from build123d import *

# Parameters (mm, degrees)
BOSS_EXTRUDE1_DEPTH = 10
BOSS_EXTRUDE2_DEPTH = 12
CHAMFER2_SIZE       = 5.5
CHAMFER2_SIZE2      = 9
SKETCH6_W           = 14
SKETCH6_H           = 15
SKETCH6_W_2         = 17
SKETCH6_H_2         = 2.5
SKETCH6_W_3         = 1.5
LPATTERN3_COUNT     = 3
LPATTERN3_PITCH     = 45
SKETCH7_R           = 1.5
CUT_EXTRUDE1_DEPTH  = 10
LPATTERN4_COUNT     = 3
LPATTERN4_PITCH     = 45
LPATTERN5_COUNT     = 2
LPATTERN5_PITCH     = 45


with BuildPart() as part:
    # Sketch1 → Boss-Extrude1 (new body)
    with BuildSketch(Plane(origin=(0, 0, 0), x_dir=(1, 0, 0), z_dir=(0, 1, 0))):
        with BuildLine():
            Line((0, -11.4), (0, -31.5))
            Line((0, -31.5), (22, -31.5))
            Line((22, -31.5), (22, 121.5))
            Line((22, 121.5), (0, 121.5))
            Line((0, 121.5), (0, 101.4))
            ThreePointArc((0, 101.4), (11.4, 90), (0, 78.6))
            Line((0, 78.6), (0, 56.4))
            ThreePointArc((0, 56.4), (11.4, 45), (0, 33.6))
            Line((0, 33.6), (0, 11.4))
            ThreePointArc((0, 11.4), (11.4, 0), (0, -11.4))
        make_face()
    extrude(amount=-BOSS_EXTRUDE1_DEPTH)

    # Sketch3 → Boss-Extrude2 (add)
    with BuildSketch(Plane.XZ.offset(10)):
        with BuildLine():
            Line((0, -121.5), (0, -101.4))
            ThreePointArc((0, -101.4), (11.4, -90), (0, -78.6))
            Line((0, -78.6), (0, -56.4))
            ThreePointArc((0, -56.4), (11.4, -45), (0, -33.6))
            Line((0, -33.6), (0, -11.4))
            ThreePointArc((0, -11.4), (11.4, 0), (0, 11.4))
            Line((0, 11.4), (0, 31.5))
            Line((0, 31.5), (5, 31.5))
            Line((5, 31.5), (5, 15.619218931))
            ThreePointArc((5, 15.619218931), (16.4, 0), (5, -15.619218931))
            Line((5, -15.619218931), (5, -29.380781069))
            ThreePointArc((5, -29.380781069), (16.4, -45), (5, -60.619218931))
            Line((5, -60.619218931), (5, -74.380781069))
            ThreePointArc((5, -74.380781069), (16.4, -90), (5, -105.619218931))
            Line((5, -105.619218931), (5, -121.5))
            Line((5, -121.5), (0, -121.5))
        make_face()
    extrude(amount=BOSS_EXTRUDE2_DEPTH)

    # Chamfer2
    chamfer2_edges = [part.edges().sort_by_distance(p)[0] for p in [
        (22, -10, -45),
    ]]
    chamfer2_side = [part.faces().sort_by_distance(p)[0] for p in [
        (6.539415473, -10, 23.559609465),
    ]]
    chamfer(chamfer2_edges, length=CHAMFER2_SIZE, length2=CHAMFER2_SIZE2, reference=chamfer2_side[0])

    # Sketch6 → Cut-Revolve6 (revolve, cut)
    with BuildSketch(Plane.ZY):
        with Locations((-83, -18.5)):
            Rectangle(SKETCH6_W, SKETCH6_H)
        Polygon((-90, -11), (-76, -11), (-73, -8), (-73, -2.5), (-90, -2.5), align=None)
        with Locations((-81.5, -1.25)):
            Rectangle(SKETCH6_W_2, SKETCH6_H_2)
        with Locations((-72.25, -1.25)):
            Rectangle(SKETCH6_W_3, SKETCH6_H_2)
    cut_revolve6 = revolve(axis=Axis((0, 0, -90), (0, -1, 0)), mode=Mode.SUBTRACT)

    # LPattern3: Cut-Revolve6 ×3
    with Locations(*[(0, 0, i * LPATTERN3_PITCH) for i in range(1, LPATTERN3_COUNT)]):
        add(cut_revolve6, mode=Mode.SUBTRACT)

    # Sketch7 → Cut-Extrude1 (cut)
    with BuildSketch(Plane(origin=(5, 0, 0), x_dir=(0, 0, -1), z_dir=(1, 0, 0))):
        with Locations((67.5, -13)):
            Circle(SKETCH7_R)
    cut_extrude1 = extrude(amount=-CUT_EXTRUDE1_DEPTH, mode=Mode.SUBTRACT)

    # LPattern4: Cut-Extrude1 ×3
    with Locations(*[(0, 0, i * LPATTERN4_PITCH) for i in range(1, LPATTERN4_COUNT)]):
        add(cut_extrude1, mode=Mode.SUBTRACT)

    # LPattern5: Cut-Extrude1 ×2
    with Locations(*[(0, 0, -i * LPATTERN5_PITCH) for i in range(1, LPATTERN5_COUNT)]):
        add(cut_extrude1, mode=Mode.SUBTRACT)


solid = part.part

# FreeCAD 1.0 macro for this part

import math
import FreeCAD as App
import Part
import Sketcher
Q = App.Units.Quantity


def edges_at(feature, points):
    """Names of the edges that pass closest to the given points."""
    edges = feature.Shape.Edges
    near = lambda p: min(range(len(edges)), key=lambda i: edges[i].distToShape(Part.Vertex(*p))[0])
    return sorted({f"Edge{near(p) + 1}" for p in points})

doc = App.newDocument("Part")
params = doc.addObject("Spreadsheet::Sheet", "Params")
for row, (alias, value) in enumerate([
    ("sketch1_radius", "11.4 mm"),
    ("sketch1_width", "22 mm"),
    ("sketch1_height", "153 mm"),
    ("sketch1_height2", "20.1 mm"),
    ("pad1_length", "10 mm"),
    ("sketch2_radius", "16.4 mm"),
    ("sketch2_radius2", "11.4 mm"),
    ("sketch2_width", "5 mm"),
    ("sketch2_height", "20.1 mm"),
    ("sketch2_height2", "22.2 mm"),
    ("pad2_length", "12 mm"),
    ("chamfer_size", "5.5 mm"),
    ("chamfer_size2", "9 mm"),
    ("sketch3_width", "15 mm"),
    ("sketch3_width2", "26 mm"),
    ("sketch3_height", "14 mm"),
    ("sketch3_width3", "5.5 mm"),
    ("sketch3_width4", "2.5 mm"),
    ("groove_angle", "360 deg"),
    ("linearpattern_pitch", "45 mm"),
    ("sketch4_diameter", "3 mm"),
    ("pocket1_length", "10 mm"),
    ("linearpattern2_pitch", "45 mm"),
    ("linearpattern3_pitch", "45 mm"),
], start=1):
    params.set(f"A{row}", alias)
    params.set(f"B{row}", "=" + value)
    params.setAlias(f"B{row}", alias)

body = doc.addObject("PartDesign::Body", "Body")

# Sketch on XZ plane
sketch1 = body.newObject("Sketcher::SketchObject", "Sketch")
sketch1.AttachmentSupport = (doc.getObject("XZ_Plane"), [""])
sketch1.MapMode = "FlatFace"
sketch1.addGeometry([
    Part.LineSegment(App.Vector(0, 11, 0), App.Vector(0, 32, 0)),  # 0
    Part.LineSegment(App.Vector(0, 32, 0), App.Vector(22, 32, 0)),  # 1
    Part.LineSegment(App.Vector(22, 32, 0), App.Vector(22, -122, 0)),  # 2
    Part.LineSegment(App.Vector(22, -122, 0), App.Vector(0, -122, 0)),  # 3
    Part.LineSegment(App.Vector(0, -122, 0), App.Vector(0, -101, 0)),  # 4
    Part.ArcOfCircle(Part.Circle(App.Vector(0, -90, 0), App.Vector(0, 0, 1), 11), math.radians(-90), math.radians(90)),  # 5
    Part.LineSegment(App.Vector(0, -79, 0), App.Vector(0, -56, 0)),  # 6
    Part.ArcOfCircle(Part.Circle(App.Vector(0, -45, 0), App.Vector(0, 0, 1), 11), math.radians(-90), math.radians(90)),  # 7
    Part.LineSegment(App.Vector(0, -34, 0), App.Vector(0, -11, 0)),  # 8
    Part.ArcOfCircle(Part.Circle(App.Vector(0, 0, 0), App.Vector(0, 0, 1), 11), math.radians(-90), math.radians(90)),  # 9
], False)
sketch1.addConstraint([
    Sketcher.Constraint("Coincident", 0, 2, 1, 1),
    Sketcher.Constraint("Coincident", 1, 2, 2, 1),
    Sketcher.Constraint("Coincident", 2, 2, 3, 1),
    Sketcher.Constraint("Coincident", 3, 2, 4, 1),
    Sketcher.Constraint("Coincident", 4, 2, 5, 1),
    Sketcher.Constraint("Coincident", 5, 2, 6, 1),
    Sketcher.Constraint("Coincident", 6, 2, 7, 1),
    Sketcher.Constraint("Coincident", 7, 2, 8, 1),
    Sketcher.Constraint("Coincident", 8, 2, 9, 1),
    Sketcher.Constraint("Coincident", 9, 2, 0, 1),
    Sketcher.Constraint("Vertical", 0),
    Sketcher.Constraint("Horizontal", 1),
    Sketcher.Constraint("Vertical", 2),
    Sketcher.Constraint("Horizontal", 3),
    Sketcher.Constraint("Vertical", 4),
    Sketcher.Constraint("Vertical", 6),
    Sketcher.Constraint("Vertical", 8),
    Sketcher.Constraint("Coincident", 9, 3, -1, 1),
    Sketcher.Constraint("Equal", 5, 7),
    Sketcher.Constraint("Equal", 7, 9),
    Sketcher.Constraint("PointOnObject", 5, 3, -2),
    Sketcher.Constraint("PointOnObject", 7, 3, -2),
    Sketcher.Constraint("PointOnObject", 0, 2, -2),
    Sketcher.Constraint("PointOnObject", 3, 2, -2),
    Sketcher.Constraint("PointOnObject", 5, 2, -2),
    Sketcher.Constraint("PointOnObject", 7, 2, -2),
    Sketcher.Constraint("Equal", 0, 4),
    Sketcher.Constraint("Equal", 6, 8),
    Sketcher.Constraint("Radius", 5, 11.4),
    Sketcher.Constraint("DistanceX", 1, 1, 1, 2, 22.0),
    Sketcher.Constraint("DistanceY", 2, 2, 2, 1, 153.0),
    Sketcher.Constraint("DistanceY", 0, 1, 0, 2, 20.1),
])
sketch1.setExpression("Constraints[28]", "Params.sketch1_radius")
sketch1.setExpression("Constraints[29]", "Params.sketch1_width")
sketch1.setExpression("Constraints[30]", "Params.sketch1_height")
sketch1.setExpression("Constraints[31]", "Params.sketch1_height2")
pad1 = body.newObject("PartDesign::Pad", "Pad")
pad1.Profile = sketch1
pad1.setExpression("Length", "Params.pad1_length")

# Sketch on XZ plane
sketch2 = body.newObject("Sketcher::SketchObject", "Sketch001")
sketch2.AttachmentSupport = (doc.getObject("XZ_Plane"), [""])
sketch2.MapMode = "FlatFace"
sketch2.AttachmentOffset = App.Placement(App.Vector(0, 0, 10), App.Rotation())
sketch2.addGeometry([
    Part.LineSegment(App.Vector(0, -101, 0), App.Vector(0, -122, 0)),  # 0
    Part.LineSegment(App.Vector(0, -122, 0), App.Vector(5, -122, 0)),  # 1
    Part.LineSegment(App.Vector(5, -122, 0), App.Vector(5, -106, 0)),  # 2
    Part.ArcOfCircle(Part.Circle(App.Vector(0, -90, 0), App.Vector(0, 0, 1), 16), math.radians(-72), math.radians(72)),  # 3
    Part.LineSegment(App.Vector(5, -74, 0), App.Vector(5, -61, 0)),  # 4
    Part.ArcOfCircle(Part.Circle(App.Vector(0, -45, 0), App.Vector(0, 0, 1), 16), math.radians(-72), math.radians(72)),  # 5
    Part.LineSegment(App.Vector(5, -29, 0), App.Vector(5, -16, 0)),  # 6
    Part.ArcOfCircle(Part.Circle(App.Vector(0, 0, 0), App.Vector(0, 0, 1), 16), math.radians(-72), math.radians(72)),  # 7
    Part.LineSegment(App.Vector(5, 16, 0), App.Vector(5, 32, 0)),  # 8
    Part.LineSegment(App.Vector(5, 32, 0), App.Vector(0, 32, 0)),  # 9
    Part.LineSegment(App.Vector(0, 32, 0), App.Vector(0, 11, 0)),  # 10
    Part.ArcOfCircle(Part.Circle(App.Vector(0, 0, 0), App.Vector(0, 0, 1), 11), math.radians(-90), math.radians(90)),  # 11
    Part.LineSegment(App.Vector(0, -11, 0), App.Vector(0, -34, 0)),  # 12
    Part.ArcOfCircle(Part.Circle(App.Vector(0, -45, 0), App.Vector(0, 0, 1), 11), math.radians(-90), math.radians(90)),  # 13
    Part.LineSegment(App.Vector(0, -56, 0), App.Vector(0, -79, 0)),  # 14
    Part.ArcOfCircle(Part.Circle(App.Vector(0, -90, 0), App.Vector(0, 0, 1), 11), math.radians(-90), math.radians(90)),  # 15
], False)
sketch2.addConstraint([
    Sketcher.Constraint("Coincident", 0, 2, 1, 1),
    Sketcher.Constraint("Coincident", 1, 2, 2, 1),
    Sketcher.Constraint("Coincident", 2, 2, 3, 1),
    Sketcher.Constraint("Coincident", 3, 2, 4, 1),
    Sketcher.Constraint("Coincident", 4, 2, 5, 1),
    Sketcher.Constraint("Coincident", 5, 2, 6, 1),
    Sketcher.Constraint("Coincident", 6, 2, 7, 1),
    Sketcher.Constraint("Coincident", 7, 2, 8, 1),
    Sketcher.Constraint("Coincident", 8, 2, 9, 1),
    Sketcher.Constraint("Coincident", 9, 2, 10, 1),
    Sketcher.Constraint("Coincident", 10, 2, 11, 2),
    Sketcher.Constraint("Coincident", 11, 1, 12, 1),
    Sketcher.Constraint("Coincident", 12, 2, 13, 2),
    Sketcher.Constraint("Coincident", 13, 1, 14, 1),
    Sketcher.Constraint("Coincident", 14, 2, 15, 2),
    Sketcher.Constraint("Coincident", 15, 1, 0, 1),
    Sketcher.Constraint("Vertical", 0),
    Sketcher.Constraint("Horizontal", 1),
    Sketcher.Constraint("Vertical", 2),
    Sketcher.Constraint("Vertical", 4),
    Sketcher.Constraint("Vertical", 6),
    Sketcher.Constraint("Vertical", 8),
    Sketcher.Constraint("Horizontal", 9),
    Sketcher.Constraint("Vertical", 10),
    Sketcher.Constraint("Vertical", 12),
    Sketcher.Constraint("Vertical", 14),
    Sketcher.Constraint("Coincident", 7, 3, -1, 1),
    Sketcher.Constraint("Coincident", 11, 3, -1, 1),
    Sketcher.Constraint("Coincident", 13, 3, 5, 3),
    Sketcher.Constraint("Coincident", 15, 3, 3, 3),
    Sketcher.Constraint("Equal", 3, 5),
    Sketcher.Constraint("Equal", 5, 7),
    Sketcher.Constraint("Equal", 11, 13),
    Sketcher.Constraint("Equal", 13, 15),
    Sketcher.Constraint("PointOnObject", 3, 3, -2),
    Sketcher.Constraint("PointOnObject", 5, 3, -2),
    Sketcher.Constraint("PointOnObject", 0, 2, -2),
    Sketcher.Constraint("PointOnObject", 9, 2, -2),
    Sketcher.Constraint("PointOnObject", 11, 1, -2),
    Sketcher.Constraint("PointOnObject", 13, 1, -2),
    Sketcher.Constraint("Vertical", 2, 2, 3, 2),
    Sketcher.Constraint("Vertical", 4, 2, 5, 2),
    Sketcher.Constraint("Vertical", 6, 2, 7, 2),
    Sketcher.Constraint("Equal", 4, 6),
    Sketcher.Constraint("Equal", 2, 8),
    Sketcher.Constraint("Radius", 3, 16.4),
    Sketcher.Constraint("Radius", 11, 11.4),
    Sketcher.Constraint("DistanceX", 1, 1, 1, 2, 5.0),
    Sketcher.Constraint("DistanceY", 0, 2, 0, 1, 20.1),
    Sketcher.Constraint("DistanceY", 12, 2, 12, 1, 22.2),
])
sketch2.setExpression("Constraints[45]", "Params.sketch2_radius")
sketch2.setExpression("Constraints[46]", "Params.sketch2_radius2")
sketch2.setExpression("Constraints[47]", "Params.sketch2_width")
sketch2.setExpression("Constraints[48]", "Params.sketch2_height")
sketch2.setExpression("Constraints[49]", "Params.sketch2_height2")
pad2 = body.newObject("PartDesign::Pad", "Pad001")
pad2.Profile = sketch2
pad2.setExpression("Length", "Params.pad2_length")
doc.recompute()

chamfer = body.newObject("PartDesign::Chamfer", "Chamfer")
chamfer.Base = (pad2, edges_at(pad2, [(22, -10, -45)]))
chamfer.ChamferType = "Two distances"
chamfer.setExpression("Size", "Params.chamfer_size")
chamfer.setExpression("Size2", "Params.chamfer_size2")
chamfer.FlipDirection = True

# Sketch on YZ plane
sketch3 = body.newObject("Sketcher::SketchObject", "Sketch002")
sketch3.AttachmentSupport = (doc.getObject("YZ_Plane"), [""])
sketch3.MapMode = "FlatFace"
sketch3.addGeometry([
    Part.LineSegment(App.Vector(-26, -90, 0), App.Vector(-26, -76, 0)),  # 0
    Part.LineSegment(App.Vector(-26, -76, 0), App.Vector(-11, -76, 0)),  # 1
    Part.LineSegment(App.Vector(-11, -76, 0), App.Vector(-8, -73, 0)),  # 2
    Part.LineSegment(App.Vector(-8, -73, 0), App.Vector(-2.5, -73, 0)),  # 3
    Part.LineSegment(App.Vector(-2.5, -73, 0), App.Vector(-2.5, -71.5, 0)),  # 4
    Part.LineSegment(App.Vector(-2.5, -71.5, 0), App.Vector(0, -71.5, 0)),  # 5
    Part.LineSegment(App.Vector(0, -71.5, 0), App.Vector(0, -90, 0)),  # 6
    Part.LineSegment(App.Vector(0, -90, 0), App.Vector(-26, -90, 0)),  # 7
], False)
sketch3.addGeometry(Part.LineSegment(App.Vector(0, -90, 0), App.Vector(-26, -90, 0)), True)  # axis
sketch3.addConstraint([
    Sketcher.Constraint("Coincident", 0, 2, 1, 1),
    Sketcher.Constraint("Coincident", 1, 2, 2, 1),
    Sketcher.Constraint("Coincident", 2, 2, 3, 1),
    Sketcher.Constraint("Coincident", 3, 2, 4, 1),
    Sketcher.Constraint("Coincident", 4, 2, 5, 1),
    Sketcher.Constraint("Coincident", 5, 2, 6, 1),
    Sketcher.Constraint("Coincident", 6, 2, 7, 1),
    Sketcher.Constraint("Coincident", 7, 2, 0, 1),
    Sketcher.Constraint("Vertical", 0),
    Sketcher.Constraint("Horizontal", 1),
    Sketcher.Constraint("Horizontal", 3),
    Sketcher.Constraint("Vertical", 4),
    Sketcher.Constraint("Horizontal", 5),
    Sketcher.Constraint("Vertical", 6),
    Sketcher.Constraint("Horizontal", 7),
    Sketcher.Constraint("Horizontal", 8),
    Sketcher.Constraint("Coincident", 8, 1, 6, 2),
    Sketcher.Constraint("PointOnObject", 5, 2, -2),
    Sketcher.Constraint("Vertical", 0, 2, 8, 2),
    Sketcher.Constraint("DistanceX", 1, 1, 1, 2, 15.0),
    Sketcher.Constraint("DistanceX", 7, 2, 7, 1, 26.0),
    Sketcher.Constraint("DistanceY", 0, 1, 0, 2, 14.0),
    Sketcher.Constraint("Angle", 2, Q("45 deg")),
    Sketcher.Constraint("DistanceX", 3, 1, 3, 2, 5.5),
    Sketcher.Constraint("DistanceX", 5, 1, 5, 2, 2.5),
    Sketcher.Constraint("DistanceY", 4, 1, 4, 2, 1.5),
    Sketcher.Constraint("DistanceY", 0, 2, -1, 1, 76.0),
])
sketch3.setExpression("Constraints[19]", "Params.sketch3_width")
sketch3.setExpression("Constraints[20]", "Params.sketch3_width2")
sketch3.setExpression("Constraints[21]", "Params.sketch3_height")
sketch3.setExpression("Constraints[23]", "Params.sketch3_width3")
sketch3.setExpression("Constraints[24]", "Params.sketch3_width4")
groove = body.newObject("PartDesign::Groove", "Groove")
groove.Profile = sketch3
groove.ReferenceAxis = (sketch3, ["Axis0"])
groove.setExpression("Angle", "Params.groove_angle")
doc.recompute()

linearpattern = body.newObject("PartDesign::LinearPattern", "LinearPattern")
linearpattern.Originals = [groove]
linearpattern.Direction = (doc.getObject("Z_Axis"), [""])
linearpattern.Mode = "offset"
linearpattern.setExpression("Offset", "Params.linearpattern_pitch")
linearpattern.Occurrences = 3
body.Tip = linearpattern

# Sketch on YZ plane
sketch4 = body.newObject("Sketcher::SketchObject", "Sketch003")
sketch4.AttachmentSupport = (doc.getObject("YZ_Plane"), [""])
sketch4.MapMode = "FlatFace"
sketch4.AttachmentOffset = App.Placement(App.Vector(0, 0, 5), App.Rotation())
sketch4.addGeometry(Part.Circle(App.Vector(-13, -67.5, 0), App.Vector(0, 0, 1), 1.5), False)
sketch4.addConstraint([
    Sketcher.Constraint("Diameter", 0, 3.0),
    Sketcher.Constraint("DistanceX", 0, 3, -1, 1, 13.0),
    Sketcher.Constraint("DistanceY", 0, 3, -1, 1, 67.5),
])
sketch4.setExpression("Constraints[0]", "Params.sketch4_diameter")
pocket1 = body.newObject("PartDesign::Pocket", "Pocket")
pocket1.Profile = sketch4
pocket1.setExpression("Length", "Params.pocket1_length")
doc.recompute()

linearpattern2 = body.newObject("PartDesign::LinearPattern", "LinearPattern001")
linearpattern2.Originals = [pocket1]
linearpattern2.Direction = (doc.getObject("Z_Axis"), [""])
linearpattern2.Mode = "offset"
linearpattern2.setExpression("Offset", "Params.linearpattern2_pitch")
linearpattern2.Occurrences = 3
body.Tip = linearpattern2
doc.recompute()

linearpattern3 = body.newObject("PartDesign::LinearPattern", "LinearPattern002")
linearpattern3.Originals = [pocket1]
linearpattern3.Direction = (doc.getObject("Z_Axis"), [""])
linearpattern3.Mode = "offset"
linearpattern3.setExpression("Offset", "Params.linearpattern3_pitch")
linearpattern3.Occurrences = 2
linearpattern3.Reversed = True
body.Tip = linearpattern3

doc.recompute()
